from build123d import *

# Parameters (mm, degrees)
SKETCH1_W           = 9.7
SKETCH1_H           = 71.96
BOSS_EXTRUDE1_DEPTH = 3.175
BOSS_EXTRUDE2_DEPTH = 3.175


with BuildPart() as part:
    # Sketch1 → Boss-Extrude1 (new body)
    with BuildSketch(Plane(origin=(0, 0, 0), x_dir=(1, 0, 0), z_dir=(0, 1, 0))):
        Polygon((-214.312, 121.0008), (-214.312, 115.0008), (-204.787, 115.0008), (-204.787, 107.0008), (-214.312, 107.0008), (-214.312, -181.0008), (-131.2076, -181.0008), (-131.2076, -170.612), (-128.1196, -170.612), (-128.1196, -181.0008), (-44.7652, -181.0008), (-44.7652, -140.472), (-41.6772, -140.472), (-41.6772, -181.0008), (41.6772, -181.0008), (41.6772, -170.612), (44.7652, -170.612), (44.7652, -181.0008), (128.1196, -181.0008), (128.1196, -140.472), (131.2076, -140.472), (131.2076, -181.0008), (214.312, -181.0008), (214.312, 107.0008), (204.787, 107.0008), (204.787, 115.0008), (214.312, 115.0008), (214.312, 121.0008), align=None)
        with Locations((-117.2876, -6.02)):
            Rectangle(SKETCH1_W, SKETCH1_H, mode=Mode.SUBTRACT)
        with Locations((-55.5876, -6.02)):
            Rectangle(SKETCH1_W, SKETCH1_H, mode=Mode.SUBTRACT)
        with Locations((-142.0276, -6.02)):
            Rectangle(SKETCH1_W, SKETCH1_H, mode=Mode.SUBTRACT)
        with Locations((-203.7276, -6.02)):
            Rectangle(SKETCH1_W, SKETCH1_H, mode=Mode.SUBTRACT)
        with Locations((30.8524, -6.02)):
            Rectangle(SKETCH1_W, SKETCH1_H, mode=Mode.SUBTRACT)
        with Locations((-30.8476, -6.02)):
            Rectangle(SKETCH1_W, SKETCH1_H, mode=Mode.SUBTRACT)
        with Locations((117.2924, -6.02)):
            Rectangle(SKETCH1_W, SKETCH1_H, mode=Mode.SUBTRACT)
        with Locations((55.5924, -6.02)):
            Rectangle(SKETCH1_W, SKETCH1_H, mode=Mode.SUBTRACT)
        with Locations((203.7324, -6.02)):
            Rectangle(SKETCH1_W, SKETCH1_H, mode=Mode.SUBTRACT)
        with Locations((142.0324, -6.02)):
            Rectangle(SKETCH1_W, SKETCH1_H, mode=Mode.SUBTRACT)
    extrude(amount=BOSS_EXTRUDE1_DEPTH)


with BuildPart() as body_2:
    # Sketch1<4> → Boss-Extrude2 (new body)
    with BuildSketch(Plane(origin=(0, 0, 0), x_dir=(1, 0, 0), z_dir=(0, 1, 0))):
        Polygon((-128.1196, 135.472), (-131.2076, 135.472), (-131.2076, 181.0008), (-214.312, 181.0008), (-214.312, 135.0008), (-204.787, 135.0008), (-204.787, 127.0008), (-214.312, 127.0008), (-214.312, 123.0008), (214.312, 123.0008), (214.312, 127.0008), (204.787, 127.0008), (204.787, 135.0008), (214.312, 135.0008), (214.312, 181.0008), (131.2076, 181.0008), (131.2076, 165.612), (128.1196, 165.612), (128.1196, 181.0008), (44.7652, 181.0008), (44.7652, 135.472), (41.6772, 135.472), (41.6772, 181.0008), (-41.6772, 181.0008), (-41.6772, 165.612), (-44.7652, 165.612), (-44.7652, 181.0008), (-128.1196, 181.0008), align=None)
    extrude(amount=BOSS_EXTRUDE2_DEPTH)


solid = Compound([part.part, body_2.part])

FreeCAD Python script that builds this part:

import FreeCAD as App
import Part
import Sketcher
from FreeCAD import Vector
Q = App.Units.Quantity


def add_polygon(sketch, points):
    """Adds a closed chain of lines whose ends are joined by coincident constraints."""
    first, n = sketch.GeometryCount, len(points)
    for a, b in zip(points, points[1:] + points[:1]):
        sketch.addGeometry(Part.LineSegment(App.Vector(*a, 0), App.Vector(*b, 0)), False)
    for i in range(n):
        sketch.addConstraint(Sketcher.Constraint("Coincident", first + i, 2, first + (i + 1) % n, 1))

doc = App.newDocument("Part")
body = doc.addObject("PartDesign::Body", "Body")

# Sketch on XZ plane
sketch1 = body.newObject("Sketcher::SketchObject", "Sketch")
sketch1.AttachmentSupport = (doc.getObject("XZ_Plane"), [""])
sketch1.MapMode = "FlatFace"
add_polygon(sketch1, [(-214.3, -121), (-214.3, -115), (-204.8, -115), (-204.8, -107), (-214.3, -107), (-214.3, 181), (-131.2, 181), (-131.2, 170.6), (-128.1, 170.6), (-128.1, 181), (-44.8, 181), (-44.8, 140.5), (-41.7, 140.5), (-41.7, 181), (41.7, 181), (41.7, 170.6), (44.8, 170.6), (44.8, 181), (128.1, 181), (128.1, 140.5), (131.2, 140.5), (131.2, 181), (214.3, 181), (214.3, -107), (204.8, -107), (204.8, -115), (214.3, -115), (214.3, -121)])  # lines 0-27
add_polygon(sketch1, [(-198.9, 42), (-208.6, 42), (-208.6, -30), (-198.9, -30)])  # lines 28-31
add_polygon(sketch1, [(-137.2, 42), (-146.9, 42), (-146.9, -30), (-137.2, -30)])  # lines 32-35
add_polygon(sketch1, [(-112.4, 42), (-122.1, 42), (-122.1, -30), (-112.4, -30)])  # lines 36-39
add_polygon(sketch1, [(-50.7, 42), (-60.4, 42), (-60.4, -30), (-50.7, -30)])  # lines 40-43
add_polygon(sketch1, [(-26, 42), (-35.7, 42), (-35.7, -30), (-26, -30)])  # lines 44-47
add_polygon(sketch1, [(35.7, 42), (26, 42), (26, -30), (35.7, -30)])  # lines 48-51
add_polygon(sketch1, [(60.4, 42), (50.7, 42), (50.7, -30), (60.4, -30)])  # lines 52-55
add_polygon(sketch1, [(122.1, 42), (112.4, 42), (112.4, -30), (122.1, -30)])  # lines 56-59
add_polygon(sketch1, [(146.9, 42), (137.2, 42), (137.2, -30), (146.9, -30)])  # lines 60-63
add_polygon(sketch1, [(208.6, 42), (198.9, 42), (198.9, -30), (208.6, -30)])  # lines 64-67
sketch1.addConstraint([
    Sketcher.Constraint("Vertical", 0),
    Sketcher.Constraint("Horizontal", 1),
    Sketcher.Constraint("Vertical", 2),
    Sketcher.Constraint("Horizontal", 3),
    Sketcher.Constraint("Vertical", 4),
    Sketcher.Constraint("Horizontal", 5),
    Sketcher.Constraint("Vertical", 6),
    Sketcher.Constraint("Horizontal", 7),
    Sketcher.Constraint("Vertical", 8),
    Sketcher.Constraint("Horizontal", 9),
    Sketcher.Constraint("Vertical", 10),
    Sketcher.Constraint("Horizontal", 11),
    Sketcher.Constraint("Vertical", 12),
    Sketcher.Constraint("Horizontal", 13),
    Sketcher.Constraint("Vertical", 14),
    Sketcher.Constraint("Horizontal", 15),
    Sketcher.Constraint("Vertical", 16),
    Sketcher.Constraint("Horizontal", 17),
    Sketcher.Constraint("Vertical", 18),
    Sketcher.Constraint("Horizontal", 19),
    Sketcher.Constraint("Vertical", 20),
    Sketcher.Constraint("Horizontal", 21),
    Sketcher.Constraint("Vertical", 22),
    Sketcher.Constraint("Horizontal", 23),
    Sketcher.Constraint("Vertical", 24),
    Sketcher.Constraint("Horizontal", 25),
    Sketcher.Constraint("Vertical", 26),
    Sketcher.Constraint("Horizontal", 27),
    Sketcher.Constraint("Horizontal", 28),
    Sketcher.Constraint("Vertical", 29),
    Sketcher.Constraint("Horizontal", 30),
    Sketcher.Constraint("Vertical", 31),
    Sketcher.Constraint("Horizontal", 32),
    Sketcher.Constraint("Vertical", 33),
    Sketcher.Constraint("Horizontal", 34),
    Sketcher.Constraint("Vertical", 35),
    Sketcher.Constraint("Horizontal", 36),
    Sketcher.Constraint("Vertical", 37),
    Sketcher.Constraint("Horizontal", 38),
    Sketcher.Constraint("Vertical", 39),
    Sketcher.Constraint("Horizontal", 40),
    Sketcher.Constraint("Vertical", 41),
    Sketcher.Constraint("Horizontal", 42),
    Sketcher.Constraint("Vertical", 43),
    Sketcher.Constraint("Horizontal", 44),
    Sketcher.Constraint("Vertical", 45),
    Sketcher.Constraint("Horizontal", 46),
    Sketcher.Constraint("Vertical", 47),
    Sketcher.Constraint("Horizontal", 48),
    Sketcher.Constraint("Vertical", 49),
    Sketcher.Constraint("Horizontal", 50),
    Sketcher.Constraint("Vertical", 51),
    Sketcher.Constraint("Horizontal", 52),
    Sketcher.Constraint("Vertical", 53),
    Sketcher.Constraint("Horizontal", 54),
    Sketcher.Constraint("Vertical", 55),
    Sketcher.Constraint("Horizontal", 56),
    Sketcher.Constraint("Vertical", 57),
    Sketcher.Constraint("Horizontal", 58),
    Sketcher.Constraint("Vertical", 59),
    Sketcher.Constraint("Horizontal", 60),
    Sketcher.Constraint("Vertical", 61),
    Sketcher.Constraint("Horizontal", 62),
    Sketcher.Constraint("Vertical", 63),
    Sketcher.Constraint("Horizontal", 64),
    Sketcher.Constraint("Vertical", 65),
    Sketcher.Constraint("Horizontal", 66),
    Sketcher.Constraint("Vertical", 67),
    Sketcher.Constraint("Symmetric", 9, 2, 16, 2, -2),
    Sketcher.Constraint("Symmetric", 5, 2, 20, 2, -2),
    Sketcher.Constraint("Symmetric", 3, 2, 22, 2, -2),
    Sketcher.Constraint("Symmetric", 1, 2, 24, 2, -2),
    Sketcher.Constraint("Horizontal", 5, 2, 8, 2),
    Sketcher.Constraint("Horizontal", 9, 2, 12, 2),
    Sketcher.Constraint("Horizontal", 7, 2, 14, 2),
    Sketcher.Constraint("Horizontal", 11, 2, 18, 2),
    Sketcher.Constraint("Horizontal", 31, 2, 32, 2),
    Sketcher.Constraint("Horizontal", 30, 2, 33, 2),
    Sketcher.Constraint("Horizontal", 35, 2, 36, 2),
    Sketcher.Constraint("Horizontal", 34, 2, 37, 2),
    Sketcher.Constraint("Horizontal", 39, 2, 40, 2),
    Sketcher.Constraint("Horizontal", 38, 2, 41, 2),
    Sketcher.Constraint("Horizontal", 43, 2, 44, 2),
    Sketcher.Constraint("Horizontal", 42, 2, 45, 2),
    Sketcher.Constraint("Horizontal", 47, 2, 48, 2),
    Sketcher.Constraint("Horizontal", 46, 2, 49, 2),
    Sketcher.Constraint("Horizontal", 51, 2, 52, 2),
    Sketcher.Constraint("Horizontal", 50, 2, 53, 2),
    Sketcher.Constraint("Horizontal", 55, 2, 56, 2),
    Sketcher.Constraint("Horizontal", 54, 2, 57, 2),
    Sketcher.Constraint("Horizontal", 59, 2, 60, 2),
    Sketcher.Constraint("Horizontal", 58, 2, 61, 2),
    Sketcher.Constraint("Horizontal", 63, 2, 64, 2),
    Sketcher.Constraint("Horizontal", 62, 2, 65, 2),
    Sketcher.Constraint("Vertical", 0, 2, 3, 2),
    Sketcher.Constraint("Vertical", 22, 2, 25, 2),
    Sketcher.Constraint("Equal", 7, 11),
    Sketcher.Constraint("Equal", 9, 13),
    Sketcher.Constraint("Equal", 11, 15),
    Sketcher.Constraint("Equal", 13, 17),
    Sketcher.Constraint("Equal", 30, 32),
    Sketcher.Constraint("Equal", 34, 36),
    Sketcher.Constraint("Equal", 38, 40),
    Sketcher.Constraint("Equal", 42, 44),
    Sketcher.Constraint("Equal", 46, 48),
    Sketcher.Constraint("Equal", 50, 52),
    Sketcher.Constraint("Equal", 54, 56),
    Sketcher.Constraint("Equal", 58, 60),
    Sketcher.Constraint("Equal", 62, 64),
    Sketcher.Constraint("DistanceY", 0, 1, 0, 2, Q("6 mm")),
    Sketcher.Constraint("DistanceY", 2, 1, 2, 2, Q("8 mm")),
    Sketcher.Constraint("DistanceX", 28, 2, 28, 1, Q("9.7 mm")),
    Sketcher.Constraint("DistanceY", -1, 1, 28, 2, Q("42 mm")),
    Sketcher.Constraint("DistanceY", 29, 2, 29, 1, Q("71.96 mm")),
    Sketcher.Constraint("DistanceX", 1, 1, 1, 2, Q("9.525 mm")),
    Sketcher.Constraint("DistanceX", 7, 1, 7, 2, Q("3.088 mm")),
    Sketcher.Constraint("DistanceX", 27, 2, 27, 1, Q("428.624 mm")),
    Sketcher.Constraint("DistanceX", 5, 1, 5, 2, Q("83.1044 mm")),
    Sketcher.Constraint("DistanceY", 4, 1, 4, 2, Q("288.0016 mm")),
    Sketcher.Constraint("DistanceY", 6, 2, 6, 1, Q("10.3888 mm")),
    Sketcher.Constraint("DistanceY", 10, 2, 10, 1, Q("40.5288 mm")),
    Sketcher.Constraint("DistanceY", -1, 1, 6, 2, Q("170.612 mm")),
    Sketcher.Constraint("DistanceX", 28, 2, -1, 1, Q("208.5776 mm")),
    Sketcher.Constraint("DistanceX", 32, 2, -1, 1, Q("146.8776 mm")),
    Sketcher.Constraint("DistanceX", 36, 2, -1, 1, Q("122.1376 mm")),
    Sketcher.Constraint("DistanceX", 40, 2, -1, 1, Q("60.4376 mm")),
    Sketcher.Constraint("DistanceX", 44, 2, -1, 1, Q("35.6976 mm")),
    Sketcher.Constraint("DistanceX", -1, 1, 48, 2, Q("26.0024 mm")),
    Sketcher.Constraint("DistanceX", -1, 1, 52, 2, Q("50.7424 mm")),
    Sketcher.Constraint("DistanceX", -1, 1, 56, 2, Q("112.4424 mm")),
    Sketcher.Constraint("DistanceX", -1, 1, 60, 2, Q("137.1824 mm")),
    Sketcher.Constraint("DistanceX", -1, 1, 64, 2, Q("198.8824 mm")),
])
pad1 = body.newObject("PartDesign::Pad", "Pad")
pad1.Profile = sketch1
pad1.Length = 3.175
pad1.Reversed = True
body2 = doc.addObject("PartDesign::Body", "Body001")

# Sketch on XZ plane
sketch2 = body2.newObject("Sketcher::SketchObject", "Sketch001")
sketch2.AttachmentSupport = (doc.getObject("XZ_Plane001"), [""])
sketch2.MapMode = "FlatFace"
add_polygon(sketch2, [(-128.1, -135.5), (-131.2, -135.5), (-131.2, -181), (-214.3, -181), (-214.3, -135), (-204.8, -135), (-204.8, -127), (-214.3, -127), (-214.3, -123), (214.3, -123), (214.3, -127), (204.8, -127), (204.8, -135), (214.3, -135), (214.3, -181), (131.2, -181), (131.2, -165.6), (128.1, -165.6), (128.1, -181), (44.8, -181), (44.8, -135.5), (41.7, -135.5), (41.7, -181), (-41.7, -181), (-41.7, -165.6), (-44.8, -165.6), (-44.8, -181), (-128.1, -181)])  # lines 0-27
sketch2.addConstraint([
    Sketcher.Constraint("Horizontal", 0),
    Sketcher.Constraint("Vertical", 1),
    Sketcher.Constraint("Horizontal", 2),
    Sketcher.Constraint("Vertical", 3),
    Sketcher.Constraint("Horizontal", 4),
    Sketcher.Constraint("Vertical", 5),
    Sketcher.Constraint("Horizontal", 6),
    Sketcher.Constraint("Vertical", 7),
    Sketcher.Constraint("Horizontal", 8),
    Sketcher.Constraint("Vertical", 9),
    Sketcher.Constraint("Horizontal", 10),
    Sketcher.Constraint("Vertical", 11),
    Sketcher.Constraint("Horizontal", 12),
    Sketcher.Constraint("Vertical", 13),
    Sketcher.Constraint("Horizontal", 14),
    Sketcher.Constraint("Vertical", 15),
    Sketcher.Constraint("Horizontal", 16),
    Sketcher.Constraint("Vertical", 17),
    Sketcher.Constraint("Horizontal", 18),
    Sketcher.Constraint("Vertical", 19),
    Sketcher.Constraint("Horizontal", 20),
    Sketcher.Constraint("Vertical", 21),
    Sketcher.Constraint("Horizontal", 22),
    Sketcher.Constraint("Vertical", 23),
    Sketcher.Constraint("Horizontal", 24),
    Sketcher.Constraint("Vertical", 25),
    Sketcher.Constraint("Horizontal", 26),
    Sketcher.Constraint("Vertical", 27),
    Sketcher.Constraint("Symmetric", 6, 2, 9, 2, -2),
    Sketcher.Constraint("Symmetric", 4, 2, 11, 2, -2),
    Sketcher.Constraint("Symmetric", 2, 2, 13, 2, -2),
    Sketcher.Constraint("Symmetric", 18, 2, 25, 2, -2),
    Sketcher.Constraint("Horizontal", 14, 2, 17, 2),
    Sketcher.Constraint("Horizontal", 0, 2, 19, 2),
    Sketcher.Constraint("Horizontal", 18, 2, 21, 2),
    Sketcher.Constraint("Horizontal", 16, 2, 23, 2),
    Sketcher.Constraint("Vertical", 3, 2, 6, 2),
    Sketcher.Constraint("Equal", 2, 14),
    Sketcher.Constraint("Equal", 0, 16),
    Sketcher.Constraint("Equal", 16, 20),
    Sketcher.Constraint("Equal", 18, 22),
    Sketcher.Constraint("Equal", 20, 24),
    Sketcher.Constraint("DistanceY", 3, 1, 3, 2, Q("46 mm")),
    Sketcher.Constraint("DistanceY", 5, 1, 5, 2, Q("8 mm")),
    Sketcher.Constraint("DistanceY", 7, 1, 7, 2, Q("4 mm")),
    Sketcher.Constraint("DistanceX", 0, 2, 0, 1, Q("3.088 mm")),
    Sketcher.Constraint("DistanceX", 4, 1, 4, 2, Q("9.525 mm")),
    Sketcher.Constraint("DistanceX", 8, 1, 8, 2, Q("428.624 mm")),
    Sketcher.Constraint("DistanceY", 16, 2, 19, 2, Q("30.14 mm")),
    Sketcher.Constraint("DistanceX", 2, 2, 2, 1, Q("83.1044 mm")),
    Sketcher.Constraint("DistanceY", 1, 2, 1, 1, Q("45.5288 mm")),
    Sketcher.Constraint("DistanceY", 0, 2, -1, 1, Q("135.472 mm")),
])
pad2 = body2.newObject("PartDesign::Pad", "Pad001")
pad2.Profile = sketch2
pad2.Length = 3.175
pad2.Reversed = True

doc.recompute()
